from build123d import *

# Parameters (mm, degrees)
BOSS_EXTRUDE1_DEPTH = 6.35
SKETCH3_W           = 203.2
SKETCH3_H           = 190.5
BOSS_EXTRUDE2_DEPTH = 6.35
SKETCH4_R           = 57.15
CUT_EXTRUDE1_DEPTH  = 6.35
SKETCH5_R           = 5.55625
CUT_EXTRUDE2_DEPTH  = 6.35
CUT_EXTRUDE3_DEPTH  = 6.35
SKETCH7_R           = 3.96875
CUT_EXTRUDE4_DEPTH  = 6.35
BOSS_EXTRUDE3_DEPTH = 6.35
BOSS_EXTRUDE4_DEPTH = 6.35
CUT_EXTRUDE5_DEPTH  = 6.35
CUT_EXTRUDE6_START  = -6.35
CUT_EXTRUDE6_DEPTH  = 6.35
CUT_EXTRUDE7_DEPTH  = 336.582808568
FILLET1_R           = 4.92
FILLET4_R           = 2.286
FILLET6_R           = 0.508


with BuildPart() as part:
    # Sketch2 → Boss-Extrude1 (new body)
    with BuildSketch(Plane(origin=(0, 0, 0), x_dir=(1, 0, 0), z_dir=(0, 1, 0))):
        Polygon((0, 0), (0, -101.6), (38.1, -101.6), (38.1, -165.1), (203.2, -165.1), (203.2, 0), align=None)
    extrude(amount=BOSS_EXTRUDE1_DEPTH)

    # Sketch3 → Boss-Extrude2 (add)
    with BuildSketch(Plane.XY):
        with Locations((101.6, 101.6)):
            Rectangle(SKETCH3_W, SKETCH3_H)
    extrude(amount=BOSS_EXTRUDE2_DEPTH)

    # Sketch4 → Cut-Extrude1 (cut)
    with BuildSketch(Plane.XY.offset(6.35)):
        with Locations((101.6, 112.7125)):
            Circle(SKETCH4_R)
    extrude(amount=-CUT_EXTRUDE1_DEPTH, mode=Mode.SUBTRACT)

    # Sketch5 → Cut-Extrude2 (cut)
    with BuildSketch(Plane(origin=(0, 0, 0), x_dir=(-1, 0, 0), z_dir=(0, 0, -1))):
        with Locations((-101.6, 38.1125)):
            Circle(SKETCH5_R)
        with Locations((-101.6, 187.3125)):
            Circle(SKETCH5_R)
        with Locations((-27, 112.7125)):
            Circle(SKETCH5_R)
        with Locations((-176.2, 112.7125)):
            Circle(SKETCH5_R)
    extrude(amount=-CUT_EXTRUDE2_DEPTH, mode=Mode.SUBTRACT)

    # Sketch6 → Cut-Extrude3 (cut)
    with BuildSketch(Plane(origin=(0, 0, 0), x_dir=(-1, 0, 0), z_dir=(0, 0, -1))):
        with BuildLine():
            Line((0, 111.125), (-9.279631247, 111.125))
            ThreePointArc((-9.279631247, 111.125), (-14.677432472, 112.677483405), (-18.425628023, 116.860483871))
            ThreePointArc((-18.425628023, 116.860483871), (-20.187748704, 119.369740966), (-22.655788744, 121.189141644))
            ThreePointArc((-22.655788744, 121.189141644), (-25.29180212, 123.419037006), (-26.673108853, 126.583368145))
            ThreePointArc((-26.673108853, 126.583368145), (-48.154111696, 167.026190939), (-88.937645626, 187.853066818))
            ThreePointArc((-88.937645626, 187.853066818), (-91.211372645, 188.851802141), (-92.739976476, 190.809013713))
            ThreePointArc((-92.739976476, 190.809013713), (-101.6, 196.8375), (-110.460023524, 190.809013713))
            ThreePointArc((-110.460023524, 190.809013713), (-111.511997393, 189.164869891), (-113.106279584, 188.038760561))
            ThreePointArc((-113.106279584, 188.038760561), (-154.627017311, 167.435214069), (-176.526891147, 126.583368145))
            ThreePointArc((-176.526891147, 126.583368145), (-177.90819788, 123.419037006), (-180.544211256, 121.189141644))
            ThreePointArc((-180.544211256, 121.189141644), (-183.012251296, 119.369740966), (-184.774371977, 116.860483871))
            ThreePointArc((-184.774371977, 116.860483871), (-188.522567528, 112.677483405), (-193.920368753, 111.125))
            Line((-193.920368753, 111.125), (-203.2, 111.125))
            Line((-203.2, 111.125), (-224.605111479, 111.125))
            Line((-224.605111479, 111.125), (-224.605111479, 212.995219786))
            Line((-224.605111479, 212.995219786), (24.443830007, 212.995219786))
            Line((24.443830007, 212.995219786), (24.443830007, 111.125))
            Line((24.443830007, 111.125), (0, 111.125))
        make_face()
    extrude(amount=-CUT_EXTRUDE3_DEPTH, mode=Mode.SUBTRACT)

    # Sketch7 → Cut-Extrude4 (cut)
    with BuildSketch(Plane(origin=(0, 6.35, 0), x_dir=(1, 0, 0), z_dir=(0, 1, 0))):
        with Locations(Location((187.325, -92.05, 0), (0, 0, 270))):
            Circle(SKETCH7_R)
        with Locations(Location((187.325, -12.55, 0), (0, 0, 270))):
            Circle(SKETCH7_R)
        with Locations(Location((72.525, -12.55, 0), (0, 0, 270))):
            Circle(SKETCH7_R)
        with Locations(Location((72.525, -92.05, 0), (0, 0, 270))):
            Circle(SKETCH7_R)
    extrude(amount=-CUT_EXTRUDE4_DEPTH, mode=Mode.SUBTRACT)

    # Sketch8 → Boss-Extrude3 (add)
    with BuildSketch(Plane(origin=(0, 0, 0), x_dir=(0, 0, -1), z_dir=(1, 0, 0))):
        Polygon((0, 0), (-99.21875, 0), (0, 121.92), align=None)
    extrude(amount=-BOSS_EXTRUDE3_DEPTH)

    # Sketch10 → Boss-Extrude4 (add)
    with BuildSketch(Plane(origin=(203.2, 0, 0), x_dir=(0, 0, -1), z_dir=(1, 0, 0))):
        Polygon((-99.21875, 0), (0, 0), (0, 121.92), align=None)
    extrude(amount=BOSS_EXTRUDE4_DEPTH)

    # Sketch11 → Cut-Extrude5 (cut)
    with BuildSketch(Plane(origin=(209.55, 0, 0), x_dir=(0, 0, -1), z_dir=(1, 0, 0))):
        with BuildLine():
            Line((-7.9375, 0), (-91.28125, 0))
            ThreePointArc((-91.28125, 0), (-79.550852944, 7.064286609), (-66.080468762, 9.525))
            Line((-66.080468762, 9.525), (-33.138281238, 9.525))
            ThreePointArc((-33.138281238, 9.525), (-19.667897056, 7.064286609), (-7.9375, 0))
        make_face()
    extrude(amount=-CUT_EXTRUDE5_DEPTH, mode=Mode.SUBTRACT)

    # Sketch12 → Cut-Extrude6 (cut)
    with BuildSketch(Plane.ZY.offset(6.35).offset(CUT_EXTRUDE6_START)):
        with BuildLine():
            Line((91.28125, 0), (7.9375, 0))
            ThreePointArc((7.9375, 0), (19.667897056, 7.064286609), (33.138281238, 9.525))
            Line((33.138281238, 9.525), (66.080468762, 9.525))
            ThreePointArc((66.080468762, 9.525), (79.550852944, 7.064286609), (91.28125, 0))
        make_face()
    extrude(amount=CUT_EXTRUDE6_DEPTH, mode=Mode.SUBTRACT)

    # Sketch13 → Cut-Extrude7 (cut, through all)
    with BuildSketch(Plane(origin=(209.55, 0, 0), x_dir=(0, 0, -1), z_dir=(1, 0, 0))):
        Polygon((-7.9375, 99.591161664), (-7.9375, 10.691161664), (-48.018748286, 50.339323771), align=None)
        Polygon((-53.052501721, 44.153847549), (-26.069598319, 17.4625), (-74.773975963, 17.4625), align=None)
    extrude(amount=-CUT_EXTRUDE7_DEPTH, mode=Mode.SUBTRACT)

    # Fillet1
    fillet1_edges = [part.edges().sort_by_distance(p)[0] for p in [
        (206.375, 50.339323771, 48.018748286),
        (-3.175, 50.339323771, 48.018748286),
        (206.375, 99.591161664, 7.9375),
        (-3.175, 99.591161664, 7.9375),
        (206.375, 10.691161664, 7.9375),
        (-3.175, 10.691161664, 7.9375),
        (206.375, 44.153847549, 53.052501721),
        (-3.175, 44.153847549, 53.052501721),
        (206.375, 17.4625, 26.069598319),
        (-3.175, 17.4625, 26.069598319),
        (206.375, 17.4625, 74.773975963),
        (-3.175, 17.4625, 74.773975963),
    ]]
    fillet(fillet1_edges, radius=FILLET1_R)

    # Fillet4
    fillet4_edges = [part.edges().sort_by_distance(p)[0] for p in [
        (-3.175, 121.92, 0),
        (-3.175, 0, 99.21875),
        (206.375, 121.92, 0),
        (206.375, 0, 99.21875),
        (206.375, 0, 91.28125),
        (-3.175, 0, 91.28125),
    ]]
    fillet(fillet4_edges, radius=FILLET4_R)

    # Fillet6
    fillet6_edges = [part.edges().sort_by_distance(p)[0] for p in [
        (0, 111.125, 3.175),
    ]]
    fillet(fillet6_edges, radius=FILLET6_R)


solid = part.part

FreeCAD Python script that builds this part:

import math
import FreeCAD as App
import Part
import Sketcher

V = App.Vector
Q = App.Units.Quantity


def edges_at(feature, points):
    """Names of the edges that pass closest to the given points."""
    edges = feature.Shape.Edges
    near = lambda p: min(range(len(edges)), key=lambda i: edges[i].distToShape(Part.Vertex(*p))[0])
    return sorted({f"Edge{near(p) + 1}" for p in points})

doc = App.newDocument("Part")
body = doc.addObject("PartDesign::Body", "Body")

# Sketch on XZ plane
sketch1 = body.newObject("Sketcher::SketchObject", "Sketch")
sketch1.AttachmentSupport = (doc.getObject("XZ_Plane"), [""])
sketch1.MapMode = "FlatFace"
sketch1.addGeometry([
    Part.LineSegment(V(0, 0, 0), V(0, 102, 0)),  # 0
    Part.LineSegment(V(0, 102, 0), V(38, 102, 0)),  # 1
    Part.LineSegment(V(38, 102, 0), V(38, 165, 0)),  # 2
    Part.LineSegment(V(38, 165, 0), V(203, 165, 0)),  # 3
    Part.LineSegment(V(203, 165, 0), V(203, 0, 0)),  # 4
    Part.LineSegment(V(203, 0, 0), V(0, 0, 0)),  # 5
], False)
sketch1.addConstraint([
    Sketcher.Constraint("Coincident", 0, 2, 1, 1),
    Sketcher.Constraint("Coincident", 1, 2, 2, 1),
    Sketcher.Constraint("Coincident", 2, 2, 3, 1),
    Sketcher.Constraint("Coincident", 3, 2, 4, 1),
    Sketcher.Constraint("Coincident", 4, 2, 5, 1),
    Sketcher.Constraint("Coincident", 5, 2, 0, 1),
    Sketcher.Constraint("Vertical", 0),
    Sketcher.Constraint("Horizontal", 1),
    Sketcher.Constraint("Vertical", 2),
    Sketcher.Constraint("Horizontal", 3),
    Sketcher.Constraint("Vertical", 4),
    Sketcher.Constraint("Horizontal", 5),
    Sketcher.Constraint("Coincident", 5, 2, -1, 1),
    Sketcher.Constraint("Equal", 3, 4),
    Sketcher.Constraint("DistanceX", 5, 2, 5, 1, Q("8 in")),
    Sketcher.Constraint("DistanceY", 0, 1, 0, 2, Q("4 in")),
    Sketcher.Constraint("DistanceX", 1, 1, 1, 2, Q("1.5 in")),
])
pad1 = body.newObject("PartDesign::Pad", "Pad")
pad1.Profile = sketch1
pad1.Length = Q("0.25 in")
pad1.Reversed = True

# Sketch on XY plane
sketch2 = body.newObject("Sketcher::SketchObject", "Sketch001")
sketch2.AttachmentSupport = (doc.getObject("XY_Plane"), [""])
sketch2.MapMode = "FlatFace"
sketch2.addGeometry([
    Part.LineSegment(V(0, 197, 0), V(0, 6, 0)),
    Part.LineSegment(V(0, 6, 0), V(203, 6, 0)),
    Part.LineSegment(V(203, 6, 0), V(203, 197, 0)),
    Part.LineSegment(V(203, 197, 0), V(0, 197, 0)),
], False)
sketch2.addConstraint([
    Sketcher.Constraint("Coincident", 0, 2, 1, 1),
    Sketcher.Constraint("Coincident", 1, 2, 2, 1),
    Sketcher.Constraint("Coincident", 2, 2, 3, 1),
    Sketcher.Constraint("Coincident", 3, 2, 0, 1),
    Sketcher.Constraint("Vertical", 0),
    Sketcher.Constraint("Horizontal", 1),
    Sketcher.Constraint("Vertical", 2),
    Sketcher.Constraint("Horizontal", 3),
    Sketcher.Constraint("PointOnObject", 0, 2, -2),
    Sketcher.Constraint("DistanceX", 1, 1, 1, 2, Q("8 in")),
    Sketcher.Constraint("DistanceY", 0, 2, 0, 1, Q("7.5 in")),
    Sketcher.Constraint("DistanceY", -1, 1, 0, 2, Q("0.25 in")),
])
pad2 = body.newObject("PartDesign::Pad", "Pad001")
pad2.Profile = sketch2
pad2.Length = Q("0.25 in")

# Sketch on XY plane
sketch3 = body.newObject("Sketcher::SketchObject", "Sketch002")
sketch3.AttachmentSupport = (doc.getObject("XY_Plane"), [""])
sketch3.MapMode = "FlatFace"
sketch3.AttachmentOffset = App.Placement(V(0, 0, 0.25 * 25.4), App.Rotation())
sketch3.addGeometry(Part.Circle(V(102, 113, 0), V(0, 0, 1), 57), False)
sketch3.addConstraint([
    Sketcher.Constraint("Diameter", 0, Q("4.5 in")),
    Sketcher.Constraint("DistanceX", -1, 1, 0, 3, Q("4 in")),
    Sketcher.Constraint("DistanceY", -1, 1, 0, 3, Q("4.4375 in")),
])
pocket1 = body.newObject("PartDesign::Pocket", "Pocket")
pocket1.Profile = sketch3
pocket1.Length = Q("0.25 in")

# Sketch on XY plane
sketch4 = body.newObject("Sketcher::SketchObject", "Sketch003")
sketch4.AttachmentSupport = (doc.getObject("XY_Plane"), [""])
sketch4.MapMode = "FlatFace"
sketch4.addGeometry([
    Part.Circle(V(102, 38, 0), V(0, 0, 1), 6),
    Part.Circle(V(102, 187, 0), V(0, 0, 1), 6),
    Part.Circle(V(27, 113, 0), V(0, 0, 1), 6),
    Part.Circle(V(176, 113, 0), V(0, 0, 1), 6),
], False)
sketch4.addConstraint([
    Sketcher.Constraint("Equal", 0, 1),
    Sketcher.Constraint("Equal", 1, 2),
    Sketcher.Constraint("Equal", 2, 3),
    Sketcher.Constraint("Horizontal", 2, 3, 3, 3),
    Sketcher.Constraint("Vertical", 0, 3, 1, 3),
    Sketcher.Constraint("Diameter", 0, Q("0.4375 in")),
    Sketcher.Constraint("DistanceX", -1, 1, 0, 3, Q("4 in")),
    Sketcher.Constraint("DistanceY", -1, 1, 2, 3, Q("4.4375 in")),
    Sketcher.Constraint("DistanceY", -1, 1, 0, 3, Q("38.1125 mm")),
    Sketcher.Constraint("DistanceY", -1, 1, 1, 3, Q("187.3125 mm")),
    Sketcher.Constraint("DistanceX", -1, 1, 2, 3, Q("27 mm")),
    Sketcher.Constraint("DistanceX", -1, 1, 3, 3, Q("176.2 mm")),
])
pocket2 = body.newObject("PartDesign::Pocket", "Pocket001")
pocket2.Profile = sketch4
pocket2.Length = Q("0.25 in")
pocket2.Reversed = True

# Sketch on XY plane
sketch5 = body.newObject("Sketcher::SketchObject", "Sketch004")
sketch5.AttachmentSupport = (doc.getObject("XY_Plane"), [""])
sketch5.MapMode = "FlatFace"
sketch5.addGeometry([
    Part.ArcOfCircle(Part.Circle(V(9.3, 121.3, 0), V(0, 0, 1), 10.2), math.radians(-90), math.radians(-26)),  # 0
    Part.LineSegment(V(9.3, 111.1, 0), V(-24.4, 111.1, 0)),  # 1
    Part.LineSegment(V(-24.4, 111.1, 0), V(-24.4, 213, 0)),  # 2
    Part.LineSegment(V(-24.4, 213, 0), V(224.6, 213, 0)),  # 3
    Part.LineSegment(V(224.6, 213, 0), V(224.6, 111.1, 0)),  # 4
    Part.LineSegment(V(224.6, 111.1, 0), V(193.9, 111.1, 0)),  # 5
    Part.ArcOfCircle(Part.Circle(V(193.9, 121.3, 0), V(0, 0, 1), 10.2), math.radians(-154), math.radians(-90)),  # 6
    Part.ArcOfCircle(Part.Circle(V(176.2, 112.7, 0), V(0, 0, 1), 9.5), math.radians(26), math.radians(63)),  # 7
    Part.ArcOfCircle(Part.Circle(V(184, 128, 0), V(0, 0, 1), 7.6), math.radians(-170), math.radians(-117)),  # 8
    Part.ArcOfCircle(Part.Circle(V(101.6, 112.7, 0), V(0, 0, 1), 76.2), math.radians(10), math.radians(81)),  # 9
    Part.ArcOfCircle(Part.Circle(V(115.2, 192.7, 0), V(0, 0, 1), 5.1), math.radians(-158), math.radians(-114)),  # 10
    Part.ArcOfCircle(Part.Circle(V(101.6, 187.3, 0), V(0, 0, 1), 9.5), math.radians(22), math.radians(158)),  # 11
    Part.ArcOfCircle(Part.Circle(V(88.1, 192.9, 0), V(0, 0, 1), 5.1), math.radians(-80), math.radians(-24)),  # 12
    Part.ArcOfCircle(Part.Circle(V(101.6, 112.7, 0), V(0, 0, 1), 76.2), math.radians(100), math.radians(170)),  # 13
    Part.ArcOfCircle(Part.Circle(V(19.2, 128, 0), V(0, 0, 1), 7.6), math.radians(-63), math.radians(-10)),  # 14
    Part.ArcOfCircle(Part.Circle(V(27, 112.7, 0), V(0, 0, 1), 9.5), math.radians(117), math.radians(154)),  # 15
], False)
sketch5.addConstraint([
    Sketcher.Constraint("Tangent", 0, 1, 1, 1),
    Sketcher.Constraint("Coincident", 1, 2, 2, 1),
    Sketcher.Constraint("Coincident", 2, 2, 3, 1),
    Sketcher.Constraint("Coincident", 3, 2, 4, 1),
    Sketcher.Constraint("Coincident", 4, 2, 5, 1),
    Sketcher.Constraint("Tangent", 5, 2, 6, 2),
    Sketcher.Constraint("Tangent", 6, 1, 7, 1),
    Sketcher.Constraint("Tangent", 7, 2, 8, 2),
    Sketcher.Constraint("Tangent", 8, 1, 9, 1),
    Sketcher.Constraint("Coincident", 9, 2, 10, 2),
    Sketcher.Constraint("Tangent", 10, 1, 11, 1),
    Sketcher.Constraint("Coincident", 11, 2, 12, 2),
    Sketcher.Constraint("Tangent", 12, 1, 13, 1),
    Sketcher.Constraint("Tangent", 13, 2, 14, 2),
    Sketcher.Constraint("Tangent", 14, 1, 15, 1),
    Sketcher.Constraint("Tangent", 15, 2, 0, 2),
    Sketcher.Constraint("Horizontal", 1),
    Sketcher.Constraint("Vertical", 2),
    Sketcher.Constraint("Horizontal", 3),
    Sketcher.Constraint("Vertical", 4),
    Sketcher.Constraint("Horizontal", 5),
    Sketcher.Constraint("Coincident", 13, 3, 9, 3),
    Sketcher.Constraint("Equal", 0, 6),
    Sketcher.Constraint("Equal", 7, 11),
    Sketcher.Constraint("Equal", 10, 12),
    Sketcher.Constraint("Equal", 9, 13),
    Sketcher.Constraint("Equal", 8, 14),
    Sketcher.Constraint("Equal", 11, 15),
    Sketcher.Constraint("Horizontal", 0, 3, 6, 3),
    Sketcher.Constraint("Horizontal", 7, 3, 9, 3),
    Sketcher.Constraint("Horizontal", 8, 3, 14, 3),
    Sketcher.Constraint("Horizontal", 13, 3, 15, 3),
    Sketcher.Constraint("Horizontal", 10, 1, 11, 2),
    Sketcher.Constraint("Vertical", 9, 3, 11, 3),
    Sketcher.Constraint("Radius", 9, Q("3 in")),
    Sketcher.Constraint("Radius", 0, Q("0.4 in")),
    Sketcher.Constraint("Radius", 8, Q("0.3 in")),
    Sketcher.Constraint("Radius", 10, Q("0.2 in")),
    Sketcher.Constraint("DistanceX", -1, 1, 9, 3, Q("4 in")),
    Sketcher.Constraint("Radius", 7, Q("0.375 in")),
    Sketcher.Constraint("DistanceY", -1, 1, 0, 3, Q("4.775 in")),
    Sketcher.Constraint("DistanceY", -1, 1, 7, 3, Q("4.4375 in")),
    Sketcher.Constraint("DistanceX", 1, 2, 1, 1, Q("33.723461 mm")),
    Sketcher.Constraint("DistanceX", 3, 1, 3, 2, Q("249.048941 mm")),
    Sketcher.Constraint("DistanceY", 2, 1, 2, 2, Q("101.87022 mm")),
    Sketcher.Constraint("DistanceX", -1, 1, 7, 3, Q("176.2 mm")),
    Sketcher.Constraint("DistanceY", -1, 1, 11, 3, Q("187.3125 mm")),
    Sketcher.Constraint("DistanceX", 10, 3, 6, 3, Q("78.734999 mm")),
])
pocket3 = body.newObject("PartDesign::Pocket", "Pocket002")
pocket3.Profile = sketch5
pocket3.Length = Q("0.25 in")
pocket3.Reversed = True

# Sketch on XZ plane
sketch6 = body.newObject("Sketcher::SketchObject", "Sketch005")
sketch6.AttachmentSupport = (doc.getObject("XZ_Plane"), [""])
sketch6.MapMode = "FlatFace"
sketch6.AttachmentOffset = App.Placement(V(0, 0, -0.25 * 25.4), App.Rotation())
sketch6.addGeometry([
    Part.Circle(V(187.3, 92, 0), V(0, 0, 1), 4),
    Part.Circle(V(187.3, 12.6, 0), V(0, 0, 1), 4),
    Part.Circle(V(72.5, 12.6, 0), V(0, 0, 1), 4),
    Part.Circle(V(72.5, 92, 0), V(0, 0, 1), 4),
], False)
sketch6.addConstraint([
    Sketcher.Constraint("Equal", 0, 1),
    Sketcher.Constraint("Equal", 1, 2),
    Sketcher.Constraint("Equal", 2, 3),
    Sketcher.Constraint("Horizontal", 1, 3, 2, 3),
    Sketcher.Constraint("Horizontal", 0, 3, 3, 3),
    Sketcher.Constraint("Vertical", 0, 3, 1, 3),
    Sketcher.Constraint("Vertical", 2, 3, 3, 3),
    Sketcher.Constraint("Diameter", 0, Q("0.3125 in")),
    Sketcher.Constraint("DistanceX", -1, 1, 0, 3, Q("7.375 in")),
    Sketcher.Constraint("DistanceY", -1, 1, 0, 3, Q("92.05 mm")),
    Sketcher.Constraint("DistanceY", -1, 1, 1, 3, Q("12.55 mm")),
    Sketcher.Constraint("DistanceX", -1, 1, 2, 3, Q("72.525 mm")),
])
pocket4 = body.newObject("PartDesign::Pocket", "Pocket003")
pocket4.Profile = sketch6
pocket4.Length = Q("0.25 in")
pocket4.Reversed = True

# Sketch on YZ plane
sketch7 = body.newObject("Sketcher::SketchObject", "Sketch006")
sketch7.AttachmentSupport = (doc.getObject("YZ_Plane"), [""])
sketch7.MapMode = "FlatFace"
sketch7.addGeometry([
    Part.LineSegment(V(0, 99, 0), V(0, 0, 0)),
    Part.LineSegment(V(0, 0, 0), V(122, 0, 0)),
    Part.LineSegment(V(122, 0, 0), V(0, 99, 0)),
], False)
sketch7.addConstraint([
    Sketcher.Constraint("Coincident", 0, 2, 1, 1),
    Sketcher.Constraint("Coincident", 1, 2, 2, 1),
    Sketcher.Constraint("Coincident", 2, 2, 0, 1),
    Sketcher.Constraint("Vertical", 0),
    Sketcher.Constraint("Horizontal", 1),
    Sketcher.Constraint("Coincident", 0, 2, -1, 1),
    Sketcher.Constraint("DistanceX", 1, 1, 1, 2, Q("4.8 in")),
    Sketcher.Constraint("DistanceY", 0, 2, 0, 1, Q("3.90625 in")),
])
pad3 = body.newObject("PartDesign::Pad", "Pad002")
pad3.Profile = sketch7
pad3.Length = Q("0.25 in")
pad3.Reversed = True

# Sketch on YZ plane
sketch8 = body.newObject("Sketcher::SketchObject", "Sketch007")
sketch8.AttachmentSupport = (doc.getObject("YZ_Plane"), [""])
sketch8.MapMode = "FlatFace"
sketch8.AttachmentOffset = App.Placement(V(0, 0, 8 * 25.4), App.Rotation())
sketch8.addGeometry([
    Part.LineSegment(V(0, 99, 0), V(0, 0, 0)),
    Part.LineSegment(V(0, 0, 0), V(122, 0, 0)),
    Part.LineSegment(V(122, 0, 0), V(0, 99, 0)),
], False)
sketch8.addConstraint([
    Sketcher.Constraint("Coincident", 0, 2, 1, 1),
    Sketcher.Constraint("Coincident", 1, 2, 2, 1),
    Sketcher.Constraint("Coincident", 2, 2, 0, 1),
    Sketcher.Constraint("Vertical", 0),
    Sketcher.Constraint("Horizontal", 1),
    Sketcher.Constraint("Coincident", 0, 2, -1, 1),
    Sketcher.Constraint("DistanceX", 1, 1, 1, 2, Q("4.8 in")),
    Sketcher.Constraint("DistanceY", 0, 2, 0, 1, Q("3.90625 in")),
])
pad4 = body.newObject("PartDesign::Pad", "Pad003")
pad4.Profile = sketch8
pad4.Length = Q("0.25 in")

# Sketch on YZ plane
sketch9 = body.newObject("Sketcher::SketchObject", "Sketch008")
sketch9.AttachmentSupport = (doc.getObject("YZ_Plane"), [""])
sketch9.MapMode = "FlatFace"
sketch9.AttachmentOffset = App.Placement(V(0, 0, 8.25 * 25.4), App.Rotation())
sketch9.addGeometry([
    Part.LineSegment(V(0, 91, 0), V(0, 8, 0)),
    Part.ArcOfCircle(Part.Circle(V(-29, 33, 0), V(0, 0, 1), 38), math.radians(-41), math.radians(0)),
    Part.LineSegment(V(10, 33, 0), V(10, 66, 0)),
    Part.ArcOfCircle(Part.Circle(V(-29, 66, 0), V(0, 0, 1), 38), math.radians(0), math.radians(41)),
], False)
sketch9.addConstraint([
    Sketcher.Constraint("Coincident", 0, 2, 1, 1),
    Sketcher.Constraint("Tangent", 1, 2, 2, 1),
    Sketcher.Constraint("Tangent", 2, 2, 3, 1),
    Sketcher.Constraint("Coincident", 3, 2, 0, 1),
    Sketcher.Constraint("Vertical", 0),
    Sketcher.Constraint("Vertical", 2),
    Sketcher.Constraint("Equal", 1, 3),
    Sketcher.Constraint("PointOnObject", 0, 2, -2),
    Sketcher.Constraint("Radius", 1, Q("1.5 in")),
    Sketcher.Constraint("DistanceY", 0, 2, 0, 1, Q("3.28125 in")),
    Sketcher.Constraint("DistanceX", 1, 3, -1, 1, Q("1.125 in")),
    Sketcher.Constraint("DistanceY", -1, 1, 0, 2, Q("0.3125 in")),
])
pocket5 = body.newObject("PartDesign::Pocket", "Pocket004")
pocket5.Profile = sketch9
pocket5.Length = Q("0.25 in")

# Sketch on YZ plane
sketch10 = body.newObject("Sketcher::SketchObject", "Sketch009")
sketch10.AttachmentSupport = (doc.getObject("YZ_Plane"), [""])
sketch10.MapMode = "FlatFace"
sketch10.addGeometry([
    Part.LineSegment(V(0, 8, 0), V(0, 91, 0)),
    Part.ArcOfCircle(Part.Circle(V(-29, 66, 0), V(0, 0, 1), 38), math.radians(0), math.radians(41)),
    Part.LineSegment(V(10, 66, 0), V(10, 33, 0)),
    Part.ArcOfCircle(Part.Circle(V(-29, 33, 0), V(0, 0, 1), 38), math.radians(-41), math.radians(0)),
], False)
sketch10.addConstraint([
    Sketcher.Constraint("Coincident", 0, 2, 1, 2),
    Sketcher.Constraint("Tangent", 1, 1, 2, 1),
    Sketcher.Constraint("Tangent", 2, 2, 3, 2),
    Sketcher.Constraint("Coincident", 3, 1, 0, 1),
    Sketcher.Constraint("Vertical", 0),
    Sketcher.Constraint("Vertical", 2),
    Sketcher.Constraint("Equal", 1, 3),
    Sketcher.Constraint("PointOnObject", 0, 2, -2),
    Sketcher.Constraint("Radius", 1, Q("1.5 in")),
    Sketcher.Constraint("DistanceY", 0, 1, 0, 2, Q("3.28125 in")),
    Sketcher.Constraint("DistanceX", 1, 3, -1, 1, Q("1.125 in")),
    Sketcher.Constraint("DistanceY", -1, 1, 0, 2, Q("3.59375 in")),
])
pocket6 = body.newObject("PartDesign::Pocket", "Pocket005")
pocket6.Profile = sketch10
pocket6.Length = Q("0.25 in")

# Sketch on YZ plane
sketch11 = body.newObject("Sketcher::SketchObject", "Sketch010")
sketch11.AttachmentSupport = (doc.getObject("YZ_Plane"), [""])
sketch11.MapMode = "FlatFace"
sketch11.AttachmentOffset = App.Placement(V(0, 0, 8.25 * 25.4), App.Rotation())
sketch11.addGeometry([
    Part.LineSegment(V(11, 8, 0), V(100, 8, 0)),  # 0
    Part.LineSegment(V(100, 8, 0), V(50, 48, 0)),  # 1
    Part.LineSegment(V(50, 48, 0), V(11, 8, 0)),  # 2
    Part.LineSegment(V(17, 26, 0), V(44, 53, 0)),  # 3
    Part.LineSegment(V(44, 53, 0), V(17, 75, 0)),  # 4
    Part.LineSegment(V(17, 75, 0), V(17, 26, 0)),  # 5
], False)
sketch11.addConstraint([
    Sketcher.Constraint("Coincident", 0, 2, 1, 1),
    Sketcher.Constraint("Coincident", 1, 2, 2, 1),
    Sketcher.Constraint("Coincident", 2, 2, 0, 1),
    Sketcher.Constraint("Coincident", 3, 2, 4, 1),
    Sketcher.Constraint("Coincident", 4, 2, 5, 1),
    Sketcher.Constraint("Coincident", 5, 2, 3, 1),
    Sketcher.Constraint("Horizontal", 0),
    Sketcher.Constraint("Vertical", 5),
    Sketcher.Constraint("Parallel", 2, 3),
    Sketcher.Constraint("Parallel", 1, 4),
    Sketcher.Constraint("DistanceX", 0, 1, 0, 2, Q("3.5 in")),
    Sketcher.Constraint("Distance", 1, Q("2.5 in")),
    Sketcher.Constraint("DistanceY", -1, 1, 0, 2, Q("0.3125 in")),
    Sketcher.Constraint("DistanceX", -1, 1, 4, 2, Q("0.6875 in")),
    Sketcher.Constraint("DistanceY", -1, 1, 3, 2, Q("53.052502 mm")),
    Sketcher.Constraint("DistanceY", -1, 1, 5, 2, Q("26.069598 mm")),
    Sketcher.Constraint("Distance", 2, Q("56.378038 mm")),
    Sketcher.Constraint("DistanceX", -1, 1, 0, 2, Q("99.591162 mm")),
])
pocket7 = body.newObject("PartDesign::Pocket", "Pocket006")
pocket7.Profile = sketch11
pocket7.Type = "ThroughAll"
doc.recompute()

fillet = body.newObject("PartDesign::Fillet", "Fillet")
fillet.Base = (pocket7, edges_at(pocket7, [
    (206.375, 50.339, 48.019),
    (-3.175, 50.339, 48.019),
    (206.375, 99.591, 7.938),
    (-3.175, 99.591, 7.938),
    (206.375, 10.691, 7.938),
    (-3.175, 10.691, 7.938),
    (206.375, 44.154, 53.053),
    (-3.175, 44.154, 53.053),
    (206.375, 17.462, 26.07),
    (-3.175, 17.462, 26.07),
    (206.375, 17.462, 74.774),
    (-3.175, 17.462, 74.774),
]))
fillet.Radius = 4.92
doc.recompute()

fillet2 = body.newObject("PartDesign::Fillet", "Fillet001")
fillet2.Base = (fillet, edges_at(fillet, [
    (-3.175, 121.92, 0),
    (-3.175, 0, 99.219),
    (206.375, 121.92, 0),
    (206.375, 0, 99.219),
    (206.375, 0, 91.281),
    (-3.175, 0, 91.281),
]))
fillet2.Radius = Q("0.09 in")
doc.recompute()

fillet3 = body.newObject("PartDesign::Fillet", "Fillet002")
fillet3.Base = (fillet2, edges_at(fillet2, [(0, 111.125, 3.175)]))
fillet3.Radius = Q("0.02 in")

doc.recompute()
